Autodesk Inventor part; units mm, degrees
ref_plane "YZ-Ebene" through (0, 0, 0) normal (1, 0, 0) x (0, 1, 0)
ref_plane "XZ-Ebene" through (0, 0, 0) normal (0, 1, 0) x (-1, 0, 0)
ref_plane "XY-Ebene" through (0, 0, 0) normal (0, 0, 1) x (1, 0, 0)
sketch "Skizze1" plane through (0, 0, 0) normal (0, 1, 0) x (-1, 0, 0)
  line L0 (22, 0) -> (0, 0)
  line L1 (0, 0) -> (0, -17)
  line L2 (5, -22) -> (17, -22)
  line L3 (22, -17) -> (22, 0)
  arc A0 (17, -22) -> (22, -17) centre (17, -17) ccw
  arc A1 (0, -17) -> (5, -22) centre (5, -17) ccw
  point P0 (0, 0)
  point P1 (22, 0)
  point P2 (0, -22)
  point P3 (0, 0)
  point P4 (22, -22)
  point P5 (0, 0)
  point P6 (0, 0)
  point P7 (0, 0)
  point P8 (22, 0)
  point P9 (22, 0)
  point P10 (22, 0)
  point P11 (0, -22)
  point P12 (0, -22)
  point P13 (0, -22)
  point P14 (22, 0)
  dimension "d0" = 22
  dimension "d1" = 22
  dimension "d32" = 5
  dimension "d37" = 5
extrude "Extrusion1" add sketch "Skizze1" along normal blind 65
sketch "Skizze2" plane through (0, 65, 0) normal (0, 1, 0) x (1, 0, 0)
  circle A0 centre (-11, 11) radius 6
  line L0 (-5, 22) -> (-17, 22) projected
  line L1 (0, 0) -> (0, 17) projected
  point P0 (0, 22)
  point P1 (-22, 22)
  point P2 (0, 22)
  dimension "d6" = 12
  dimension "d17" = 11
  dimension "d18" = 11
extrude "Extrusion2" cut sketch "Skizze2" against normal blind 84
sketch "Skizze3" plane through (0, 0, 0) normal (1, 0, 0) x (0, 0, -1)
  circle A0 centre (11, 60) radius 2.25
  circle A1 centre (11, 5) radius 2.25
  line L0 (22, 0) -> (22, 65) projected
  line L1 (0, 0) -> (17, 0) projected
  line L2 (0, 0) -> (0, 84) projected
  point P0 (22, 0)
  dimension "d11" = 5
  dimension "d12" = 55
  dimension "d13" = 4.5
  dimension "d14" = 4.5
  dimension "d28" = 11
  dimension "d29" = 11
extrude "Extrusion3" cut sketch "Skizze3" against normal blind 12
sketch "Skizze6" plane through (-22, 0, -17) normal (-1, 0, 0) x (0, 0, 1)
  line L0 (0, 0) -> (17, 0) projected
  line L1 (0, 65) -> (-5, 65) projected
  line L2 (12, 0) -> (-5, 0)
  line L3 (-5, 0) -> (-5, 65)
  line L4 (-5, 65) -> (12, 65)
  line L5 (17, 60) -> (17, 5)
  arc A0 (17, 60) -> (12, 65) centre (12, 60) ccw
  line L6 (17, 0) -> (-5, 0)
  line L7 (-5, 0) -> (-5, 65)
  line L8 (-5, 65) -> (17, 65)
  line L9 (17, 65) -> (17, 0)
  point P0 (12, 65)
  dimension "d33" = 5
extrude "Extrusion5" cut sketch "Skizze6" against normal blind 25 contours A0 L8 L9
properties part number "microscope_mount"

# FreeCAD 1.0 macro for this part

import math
import FreeCAD as App
import Part
import Sketcher
Q = App.Units.Quantity

doc = App.newDocument("Part")
body = doc.addObject("PartDesign::Body", "Body")

sketch1 = body.newObject("Sketcher::SketchObject", "Sketch")
sketch1.AttachmentSupport = (doc.getObject("XZ_Plane"), [""])
sketch1.MapMode = "FlatFace"
sketch1.addGeometry([
    Part.LineSegment(App.Vector(-22, -17, 0), App.Vector(-22, 0, 0)),
    Part.LineSegment(App.Vector(-22, 0, 0), App.Vector(0, 0, 0)),
    Part.LineSegment(App.Vector(0, 0, 0), App.Vector(0, -17, 0)),
    Part.ArcOfCircle(Part.Circle(App.Vector(-5, -17, 0), App.Vector(0, 0, 1), 5), math.radians(-90), math.radians(0)),
    Part.LineSegment(App.Vector(-5, -22, 0), App.Vector(-17, -22, 0)),
    Part.ArcOfCircle(Part.Circle(App.Vector(-17, -17, 0), App.Vector(0, 0, 1), 5), math.radians(180), math.radians(270)),
], False)
sketch1.addConstraint([
    Sketcher.Constraint("Coincident", 0, 2, 1, 1),
    Sketcher.Constraint("Coincident", 1, 2, 2, 1),
    Sketcher.Constraint("Tangent", 2, 2, 3, 2),
    Sketcher.Constraint("Tangent", 3, 1, 4, 1),
    Sketcher.Constraint("Tangent", 4, 2, 5, 2),
    Sketcher.Constraint("Tangent", 5, 1, 0, 1),
    Sketcher.Constraint("Vertical", 0),
    Sketcher.Constraint("Horizontal", 1),
    Sketcher.Constraint("Vertical", 2),
    Sketcher.Constraint("Horizontal", 4),
    Sketcher.Constraint("Coincident", 1, 2, -1, 1),
    Sketcher.Constraint("Equal", 3, 5),
    Sketcher.Constraint("Radius", 3, Q("5 mm")),
    Sketcher.Constraint("DistanceX", 1, 1, 1, 2, Q("22 mm")),
    Sketcher.Constraint("DistanceY", 3, 1, -1, 1, Q("22 mm")),
])
pad1 = body.newObject("PartDesign::Pad", "Pad")
pad1.Profile = sketch1
pad1.Length = 65
pad1.Reversed = True

sketch2 = body.newObject("Sketcher::SketchObject", "Sketch001")
sketch2.AttachmentSupport = (doc.getObject("XZ_Plane"), [""])
sketch2.MapMode = "FlatFace"
sketch2.AttachmentOffset = App.Placement(App.Vector(0, 0, -65), App.Rotation())
sketch2.addGeometry(Part.Circle(App.Vector(-11, -11, 0), App.Vector(0, 0, 1), 6), False)
sketch2.addConstraint([
    Sketcher.Constraint("Diameter", 0, Q("12 mm")),
    Sketcher.Constraint("DistanceX", 0, 3, -1, 1, Q("11 mm")),
    Sketcher.Constraint("DistanceY", 0, 3, -1, 1, Q("11 mm")),
])
pocket1 = body.newObject("PartDesign::Pocket", "Pocket")
pocket1.Profile = sketch2
pocket1.Length = 84
pocket1.Reversed = True

sketch3 = body.newObject("Sketcher::SketchObject", "Sketch002")
sketch3.AttachmentSupport = (doc.getObject("YZ_Plane"), [""])
sketch3.MapMode = "FlatFace"
sketch3.addGeometry([
    Part.Circle(App.Vector(60, -11, 0), App.Vector(0, 0, 1), 2.2),
    Part.Circle(App.Vector(5, -11, 0), App.Vector(0, 0, 1), 2.2),
], False)
sketch3.addConstraint([
    Sketcher.Constraint("Equal", 0, 1),
    Sketcher.Constraint("Horizontal", 0, 3, 1, 3),
    Sketcher.Constraint("Diameter", 0, Q("4.5 mm")),
    Sketcher.Constraint("DistanceY", 0, 3, -1, 1, Q("11 mm")),
    Sketcher.Constraint("DistanceX", -1, 1, 1, 3, Q("5 mm")),
    Sketcher.Constraint("DistanceX", 1, 3, 0, 3, Q("55 mm")),
])
pocket2 = body.newObject("PartDesign::Pocket", "Pocket001")
pocket2.Profile = sketch3
pocket2.Length = 12

sketch4 = body.newObject("Sketcher::SketchObject", "Sketch003")
sketch4.AttachmentSupport = (doc.getObject("YZ_Plane"), [""])
sketch4.MapMode = "FlatFace"
sketch4.AttachmentOffset = App.Placement(App.Vector(0, 0, -22), App.Rotation())
sketch4.addGeometry([
    Part.ArcOfCircle(Part.Circle(App.Vector(60, -5, 0), App.Vector(0, 0, 1), 5), math.radians(0), math.radians(90)),
    Part.LineSegment(App.Vector(60, 0, 0), App.Vector(65, 0, 0)),
    Part.LineSegment(App.Vector(65, 0, 0), App.Vector(65, -5, 0)),
], False)
sketch4.addConstraint([
    Sketcher.Constraint("Tangent", 0, 2, 1, 1),
    Sketcher.Constraint("Coincident", 1, 2, 2, 1),
    Sketcher.Constraint("Tangent", 2, 2, 0, 1),
    Sketcher.Constraint("Horizontal", 1),
    Sketcher.Constraint("Vertical", 2),
    Sketcher.Constraint("PointOnObject", 0, 2, -1),
    Sketcher.Constraint("Radius", 0, Q("5 mm")),
    Sketcher.Constraint("DistanceX", -1, 1, 0, 3, Q("60 mm")),
])
pocket3 = body.newObject("PartDesign::Pocket", "Pocket002")
pocket3.Profile = sketch4
pocket3.Length = 25
pocket3.Reversed = True

doc.recompute()
